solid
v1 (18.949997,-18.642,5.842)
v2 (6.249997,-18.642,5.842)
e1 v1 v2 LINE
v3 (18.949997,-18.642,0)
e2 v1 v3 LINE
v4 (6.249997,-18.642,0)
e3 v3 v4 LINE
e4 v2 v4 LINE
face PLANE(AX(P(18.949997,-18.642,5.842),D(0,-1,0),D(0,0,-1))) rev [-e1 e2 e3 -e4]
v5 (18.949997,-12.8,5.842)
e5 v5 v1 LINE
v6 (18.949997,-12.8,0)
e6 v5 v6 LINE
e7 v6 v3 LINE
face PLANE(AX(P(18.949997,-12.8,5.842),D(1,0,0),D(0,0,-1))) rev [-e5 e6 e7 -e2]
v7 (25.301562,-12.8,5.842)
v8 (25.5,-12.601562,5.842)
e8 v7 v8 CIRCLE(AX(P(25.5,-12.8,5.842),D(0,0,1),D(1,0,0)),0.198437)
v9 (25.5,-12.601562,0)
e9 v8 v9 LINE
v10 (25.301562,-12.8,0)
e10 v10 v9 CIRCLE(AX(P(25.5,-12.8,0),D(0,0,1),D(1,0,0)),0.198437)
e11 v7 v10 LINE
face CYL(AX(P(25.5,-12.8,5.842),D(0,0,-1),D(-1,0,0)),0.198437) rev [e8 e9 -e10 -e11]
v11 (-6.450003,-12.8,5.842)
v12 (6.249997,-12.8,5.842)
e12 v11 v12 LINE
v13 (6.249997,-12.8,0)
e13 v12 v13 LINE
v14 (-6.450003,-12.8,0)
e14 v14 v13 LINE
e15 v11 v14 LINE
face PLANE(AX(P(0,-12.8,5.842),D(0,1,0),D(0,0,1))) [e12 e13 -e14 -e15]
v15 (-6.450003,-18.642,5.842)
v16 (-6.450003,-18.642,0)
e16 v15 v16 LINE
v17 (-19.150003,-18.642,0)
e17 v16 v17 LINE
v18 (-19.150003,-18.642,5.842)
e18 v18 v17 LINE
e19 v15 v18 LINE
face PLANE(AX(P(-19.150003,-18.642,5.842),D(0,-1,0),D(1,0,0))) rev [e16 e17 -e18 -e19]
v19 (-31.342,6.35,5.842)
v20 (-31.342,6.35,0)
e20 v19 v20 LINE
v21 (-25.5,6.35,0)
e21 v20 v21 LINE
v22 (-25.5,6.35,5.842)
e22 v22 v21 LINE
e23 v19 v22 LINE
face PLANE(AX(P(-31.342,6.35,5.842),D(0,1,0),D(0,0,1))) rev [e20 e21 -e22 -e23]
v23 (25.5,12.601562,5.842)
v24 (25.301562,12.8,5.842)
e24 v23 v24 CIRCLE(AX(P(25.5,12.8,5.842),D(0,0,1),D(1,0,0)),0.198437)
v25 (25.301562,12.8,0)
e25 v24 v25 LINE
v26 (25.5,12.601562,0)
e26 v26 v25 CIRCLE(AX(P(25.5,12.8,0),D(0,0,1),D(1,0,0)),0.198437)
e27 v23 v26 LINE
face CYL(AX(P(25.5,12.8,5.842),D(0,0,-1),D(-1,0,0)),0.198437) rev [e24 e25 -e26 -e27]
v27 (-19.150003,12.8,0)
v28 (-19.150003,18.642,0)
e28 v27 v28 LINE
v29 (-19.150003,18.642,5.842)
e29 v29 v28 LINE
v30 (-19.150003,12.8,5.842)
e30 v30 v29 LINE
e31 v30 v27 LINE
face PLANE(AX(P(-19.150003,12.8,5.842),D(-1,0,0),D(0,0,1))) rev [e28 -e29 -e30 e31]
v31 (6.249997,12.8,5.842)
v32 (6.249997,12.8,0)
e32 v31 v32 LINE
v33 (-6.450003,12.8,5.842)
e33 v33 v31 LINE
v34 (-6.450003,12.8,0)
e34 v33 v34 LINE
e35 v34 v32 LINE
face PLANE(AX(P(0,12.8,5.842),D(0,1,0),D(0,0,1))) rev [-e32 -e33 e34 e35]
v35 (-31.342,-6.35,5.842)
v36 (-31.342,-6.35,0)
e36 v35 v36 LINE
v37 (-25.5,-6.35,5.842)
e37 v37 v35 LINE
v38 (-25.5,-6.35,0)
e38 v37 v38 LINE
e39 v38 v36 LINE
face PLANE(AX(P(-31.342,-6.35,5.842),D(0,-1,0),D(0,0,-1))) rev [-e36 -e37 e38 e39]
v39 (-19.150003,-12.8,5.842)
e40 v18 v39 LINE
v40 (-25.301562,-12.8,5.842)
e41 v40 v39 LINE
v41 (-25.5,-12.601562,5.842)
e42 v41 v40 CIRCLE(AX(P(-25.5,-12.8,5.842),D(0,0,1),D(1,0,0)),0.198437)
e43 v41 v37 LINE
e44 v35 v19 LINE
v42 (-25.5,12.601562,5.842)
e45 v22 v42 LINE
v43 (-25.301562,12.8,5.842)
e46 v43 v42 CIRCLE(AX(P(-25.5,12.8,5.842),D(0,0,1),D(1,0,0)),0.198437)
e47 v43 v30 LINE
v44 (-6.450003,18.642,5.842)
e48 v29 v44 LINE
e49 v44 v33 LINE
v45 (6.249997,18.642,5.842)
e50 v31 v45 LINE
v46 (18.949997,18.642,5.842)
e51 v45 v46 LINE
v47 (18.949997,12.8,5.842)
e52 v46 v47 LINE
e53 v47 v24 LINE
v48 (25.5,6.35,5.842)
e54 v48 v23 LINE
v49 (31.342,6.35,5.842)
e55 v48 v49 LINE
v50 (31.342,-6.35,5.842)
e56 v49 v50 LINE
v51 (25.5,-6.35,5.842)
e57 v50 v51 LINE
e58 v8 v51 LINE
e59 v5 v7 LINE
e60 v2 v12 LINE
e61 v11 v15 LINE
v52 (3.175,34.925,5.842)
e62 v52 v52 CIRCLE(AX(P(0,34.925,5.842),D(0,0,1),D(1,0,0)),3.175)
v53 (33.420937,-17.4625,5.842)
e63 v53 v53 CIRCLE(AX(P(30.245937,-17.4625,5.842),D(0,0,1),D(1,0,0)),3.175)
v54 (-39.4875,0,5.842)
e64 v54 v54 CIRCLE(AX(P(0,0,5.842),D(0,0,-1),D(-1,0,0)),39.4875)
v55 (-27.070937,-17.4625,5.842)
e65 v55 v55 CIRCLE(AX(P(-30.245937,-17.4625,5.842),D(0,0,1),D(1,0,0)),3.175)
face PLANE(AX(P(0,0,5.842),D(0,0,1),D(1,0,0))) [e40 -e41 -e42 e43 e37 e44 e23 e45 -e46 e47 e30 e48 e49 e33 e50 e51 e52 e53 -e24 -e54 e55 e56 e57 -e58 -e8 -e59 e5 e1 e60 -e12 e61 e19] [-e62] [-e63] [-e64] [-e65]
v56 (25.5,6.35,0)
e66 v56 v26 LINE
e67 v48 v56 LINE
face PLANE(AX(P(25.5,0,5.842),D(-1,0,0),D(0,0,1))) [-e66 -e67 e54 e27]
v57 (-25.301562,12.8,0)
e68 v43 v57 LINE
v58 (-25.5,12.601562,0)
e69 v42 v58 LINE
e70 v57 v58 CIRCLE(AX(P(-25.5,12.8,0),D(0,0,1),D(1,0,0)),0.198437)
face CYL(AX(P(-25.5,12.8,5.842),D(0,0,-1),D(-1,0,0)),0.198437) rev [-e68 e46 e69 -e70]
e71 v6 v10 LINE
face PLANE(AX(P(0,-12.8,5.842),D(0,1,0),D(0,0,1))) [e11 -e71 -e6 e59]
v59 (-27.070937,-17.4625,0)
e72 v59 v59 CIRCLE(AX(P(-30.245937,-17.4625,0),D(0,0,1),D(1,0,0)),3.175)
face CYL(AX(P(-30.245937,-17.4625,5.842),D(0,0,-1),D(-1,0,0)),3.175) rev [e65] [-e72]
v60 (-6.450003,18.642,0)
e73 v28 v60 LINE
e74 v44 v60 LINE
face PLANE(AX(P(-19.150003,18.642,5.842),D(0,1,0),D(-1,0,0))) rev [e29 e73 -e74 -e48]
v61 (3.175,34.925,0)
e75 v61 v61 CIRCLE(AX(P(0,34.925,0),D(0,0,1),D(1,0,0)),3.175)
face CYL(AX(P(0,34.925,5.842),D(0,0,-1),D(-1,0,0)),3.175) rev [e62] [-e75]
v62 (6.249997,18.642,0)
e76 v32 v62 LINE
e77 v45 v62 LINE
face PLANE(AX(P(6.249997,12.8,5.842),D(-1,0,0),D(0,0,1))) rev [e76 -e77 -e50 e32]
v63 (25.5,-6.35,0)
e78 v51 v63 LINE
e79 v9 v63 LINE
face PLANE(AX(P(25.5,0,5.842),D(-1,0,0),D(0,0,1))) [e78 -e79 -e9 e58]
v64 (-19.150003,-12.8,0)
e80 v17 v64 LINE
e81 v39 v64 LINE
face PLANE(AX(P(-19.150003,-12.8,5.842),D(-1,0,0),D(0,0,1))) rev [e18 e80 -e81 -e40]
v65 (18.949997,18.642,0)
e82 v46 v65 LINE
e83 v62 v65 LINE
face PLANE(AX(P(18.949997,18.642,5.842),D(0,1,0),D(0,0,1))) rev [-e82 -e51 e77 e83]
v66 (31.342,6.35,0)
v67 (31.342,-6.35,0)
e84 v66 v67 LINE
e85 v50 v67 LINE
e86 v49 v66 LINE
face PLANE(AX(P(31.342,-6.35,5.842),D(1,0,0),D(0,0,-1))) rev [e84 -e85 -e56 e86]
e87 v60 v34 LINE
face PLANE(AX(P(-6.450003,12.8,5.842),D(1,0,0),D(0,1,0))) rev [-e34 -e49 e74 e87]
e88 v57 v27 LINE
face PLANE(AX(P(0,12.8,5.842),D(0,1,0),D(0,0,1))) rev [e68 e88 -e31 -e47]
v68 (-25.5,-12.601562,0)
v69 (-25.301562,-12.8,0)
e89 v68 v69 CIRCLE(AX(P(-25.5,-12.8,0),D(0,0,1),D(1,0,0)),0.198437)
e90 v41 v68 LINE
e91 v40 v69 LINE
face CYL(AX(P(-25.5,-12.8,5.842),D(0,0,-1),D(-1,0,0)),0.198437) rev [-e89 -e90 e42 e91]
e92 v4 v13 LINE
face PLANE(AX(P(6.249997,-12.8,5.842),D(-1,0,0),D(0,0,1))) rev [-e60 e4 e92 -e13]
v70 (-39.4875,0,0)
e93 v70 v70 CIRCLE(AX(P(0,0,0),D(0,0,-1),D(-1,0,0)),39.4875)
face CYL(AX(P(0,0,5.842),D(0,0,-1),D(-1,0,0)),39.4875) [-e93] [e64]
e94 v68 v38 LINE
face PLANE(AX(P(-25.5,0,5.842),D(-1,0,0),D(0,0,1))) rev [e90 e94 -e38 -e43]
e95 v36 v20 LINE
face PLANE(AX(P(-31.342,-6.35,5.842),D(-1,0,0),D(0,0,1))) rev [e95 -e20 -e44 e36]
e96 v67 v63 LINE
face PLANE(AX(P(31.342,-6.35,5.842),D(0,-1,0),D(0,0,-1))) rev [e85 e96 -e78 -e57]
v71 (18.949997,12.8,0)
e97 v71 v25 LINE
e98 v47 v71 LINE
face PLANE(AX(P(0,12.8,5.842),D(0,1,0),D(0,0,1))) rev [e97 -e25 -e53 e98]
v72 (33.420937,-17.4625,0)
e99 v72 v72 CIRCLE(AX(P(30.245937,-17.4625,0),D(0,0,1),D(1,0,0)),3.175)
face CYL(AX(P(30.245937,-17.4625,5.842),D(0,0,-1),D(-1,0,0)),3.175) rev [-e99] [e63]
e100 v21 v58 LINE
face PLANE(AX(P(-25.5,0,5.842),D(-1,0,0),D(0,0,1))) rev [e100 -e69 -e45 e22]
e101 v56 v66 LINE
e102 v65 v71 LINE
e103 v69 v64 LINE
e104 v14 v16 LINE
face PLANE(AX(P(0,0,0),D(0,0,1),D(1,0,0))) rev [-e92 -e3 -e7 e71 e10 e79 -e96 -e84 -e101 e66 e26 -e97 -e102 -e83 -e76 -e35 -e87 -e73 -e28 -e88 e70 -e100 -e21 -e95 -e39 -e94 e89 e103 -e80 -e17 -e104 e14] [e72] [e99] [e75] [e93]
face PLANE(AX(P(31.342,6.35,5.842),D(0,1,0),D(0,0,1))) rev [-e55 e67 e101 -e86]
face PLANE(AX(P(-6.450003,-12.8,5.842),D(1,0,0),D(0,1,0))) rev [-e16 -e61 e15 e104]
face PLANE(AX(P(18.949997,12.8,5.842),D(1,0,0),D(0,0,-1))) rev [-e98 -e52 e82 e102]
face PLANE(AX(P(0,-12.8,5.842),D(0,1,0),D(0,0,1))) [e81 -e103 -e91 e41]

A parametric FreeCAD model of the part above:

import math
import FreeCAD as App
import Part
import Sketcher
from FreeCAD import Vector
Q = App.Units.Quantity


def add_polygon(sketch, points):
    """Adds a closed chain of lines whose ends are joined by coincident constraints."""
    first, n = sketch.GeometryCount, len(points)
    for a, b in zip(points, points[1:] + points[:1]):
        sketch.addGeometry(Part.LineSegment(App.Vector(*a, 0), App.Vector(*b, 0)), False)
    for i in range(n):
        sketch.addConstraint(Sketcher.Constraint("Coincident", first + i, 2, first + (i + 1) % n, 1))

doc = App.newDocument("Part")
body = doc.addObject("PartDesign::Body", "Body")

# Sketch on XY plane
sketch1 = doc.addObject("Sketcher::SketchObject", "Sketch")
body.addObject(sketch1)
sketch1.AttachmentSupport = (doc.XY_Plane, [""])
sketch1.MapMode = "FlatFace"
sketch1.addGeometry([
    Part.Circle(Vector(0, 0, 0), Vector(0, 0, 1), 41.27),  # 0
    Part.Circle(Vector(-30.25, -17.46, 0), Vector(0, 0, 1), 3.17),  # 1
    Part.Circle(Vector(30.25, -17.46, 0), Vector(0, 0, 1), 3.17),  # 2
    Part.LineSegment(Vector(25.3, -12.8, 0), Vector(-25.3, -12.8, 0)),  # 3
    Part.ArcOfCircle(Part.Circle(Vector(-25.5, -12.8, 0), Vector(0, 0, 1), 0.2), math.radians(90), math.radians(360)),  # 4
    Part.LineSegment(Vector(-25.5, -12.6, 0), Vector(-25.5, 12.6, 0)),  # 5
    Part.ArcOfCircle(Part.Circle(Vector(-25.5, 12.8, 0), Vector(0, 0, 1), 0.2), math.radians(0), math.radians(270)),  # 6
    Part.LineSegment(Vector(-25.3, 12.8, 0), Vector(25.3, 12.8, 0)),  # 7
    Part.ArcOfCircle(Part.Circle(Vector(25.5, 12.8, 0), Vector(0, 0, 1), 0.2), math.radians(-90), math.radians(180)),  # 8
    Part.LineSegment(Vector(25.5, 12.6, 0), Vector(25.5, -12.6, 0)),  # 9
    Part.ArcOfCircle(Part.Circle(Vector(25.5, -12.8, 0), Vector(0, 0, 1), 0.2), math.radians(180), math.radians(450)),  # 10
    Part.Circle(Vector(0, 34.92, 0), Vector(0, 0, 1), 3.17),  # 11
], False)
sketch1.addConstraint([
    Sketcher.Constraint("Coincident", 3, 2, 4, 2),
    Sketcher.Constraint("Coincident", 4, 1, 5, 1),
    Sketcher.Constraint("Coincident", 5, 2, 6, 2),
    Sketcher.Constraint("Coincident", 6, 1, 7, 1),
    Sketcher.Constraint("Coincident", 7, 2, 8, 2),
    Sketcher.Constraint("Coincident", 8, 1, 9, 1),
    Sketcher.Constraint("Coincident", 9, 2, 10, 2),
    Sketcher.Constraint("Coincident", 10, 1, 3, 1),
    Sketcher.Constraint("Horizontal", 3),
    Sketcher.Constraint("Vertical", 5),
    Sketcher.Constraint("Horizontal", 7),
    Sketcher.Constraint("Vertical", 9),
    Sketcher.Constraint("Coincident", 0, 3, -1, 1),
    Sketcher.Constraint("Equal", 1, 2),
    Sketcher.Constraint("Equal", 4, 6),
    Sketcher.Constraint("Equal", 6, 8),
    Sketcher.Constraint("Equal", 8, 10),
    Sketcher.Constraint("Equal", 2, 11),
    Sketcher.Constraint("Symmetric", 4, 3, 8, 3, -1, 1),
    Sketcher.Constraint("Symmetric", 6, 3, 10, 3, -1, 1),
    Sketcher.Constraint("Symmetric", 1, 3, 2, 3, -2),
    Sketcher.Constraint("Symmetric", 6, 3, 8, 3, -2),
    Sketcher.Constraint("PointOnObject", 11, 3, -2),
    Sketcher.Constraint("Horizontal", 10, 3, 3, 2),
    Sketcher.Constraint("Horizontal", 8, 3, 6, 1),
    Sketcher.Constraint("Vertical", 6, 3, 4, 1),
    Sketcher.Constraint("Vertical", 10, 3, 8, 1),
    Sketcher.Constraint("Diameter", 0, Q("3.25 in")),
    Sketcher.Constraint("Diameter", 1, Q("0.25 in")),
    Sketcher.Constraint("DistanceY", 1, 3, -1, 1, Q("0.6875 in")),
    Sketcher.Constraint("DistanceY", -1, 1, 11, 3, Q("1.375 in")),
    Sketcher.Constraint("Radius", 4, Q("0.198437 mm")),
    Sketcher.Constraint("DistanceX", 4, 3, -1, 1, Q("25.5 mm")),
    Sketcher.Constraint("DistanceY", 4, 3, -1, 1, Q("12.8 mm")),
    Sketcher.Constraint("DistanceX", 1, 3, -1, 1, Q("30.245937 mm")),
])
pad1 = doc.addObject("PartDesign::Pad", "Pad")
body.addObject(pad1)
pad1.Profile = sketch1
pad1.Length = Q("0.23 in")

# Sketch on XY plane
sketch2 = doc.addObject("Sketcher::SketchObject", "Sketch001")
body.addObject(sketch2)
sketch2.AttachmentSupport = (doc.XY_Plane, [""])
sketch2.MapMode = "FlatFace"
sketch2.addGeometry([
    Part.Circle(Vector(0, 0, 0), Vector(0, 0, 1), 41),
    Part.Circle(Vector(0, 0, 0), Vector(0, 0, 1), 39),
], False)
sketch2.addConstraint([
    Sketcher.Constraint("Coincident", 0, 3, -1, 1),
    Sketcher.Constraint("Coincident", 1, 3, -1, 1),
    Sketcher.Constraint("Diameter", 0, Q("3.25 in")),
    Sketcher.Constraint("Diameter", 1, Q("78.975 mm")),
])
pocket1 = doc.addObject("PartDesign::Pocket", "Pocket")
body.addObject(pocket1)
pocket1.Profile = sketch2
pocket1.Type = "ThroughAll"
pocket1.Reversed = True

# Sketch on XY plane
sketch3 = doc.addObject("Sketcher::SketchObject", "Sketch002")
body.addObject(sketch3)
sketch3.AttachmentSupport = (doc.XY_Plane, [""])
sketch3.MapMode = "FlatFace"
add_polygon(sketch3, [(31, 6), (31, -6), (26, -6), (26, 6)])  # lines 0-3
add_polygon(sketch3, [(19, 19), (19, 13), (6, 13), (6, 19)])  # lines 4-7
add_polygon(sketch3, [(-6, 19), (-6, 13), (-19, 13), (-19, 19)])  # lines 8-11
add_polygon(sketch3, [(-6, -13), (-6, -19), (-19, -19), (-19, -13)])  # lines 12-15
add_polygon(sketch3, [(19, -13), (19, -19), (6, -19), (6, -13)])  # lines 16-19
add_polygon(sketch3, [(-26, 6), (-26, -6), (-31, -6), (-31, 6)])  # lines 20-23
sketch3.addConstraint([
    Sketcher.Constraint("Vertical", 0),
    Sketcher.Constraint("Horizontal", 1),
    Sketcher.Constraint("Vertical", 2),
    Sketcher.Constraint("Horizontal", 3),
    Sketcher.Constraint("Vertical", 4),
    Sketcher.Constraint("Horizontal", 5),
    Sketcher.Constraint("Vertical", 6),
    Sketcher.Constraint("Horizontal", 7),
    Sketcher.Constraint("Vertical", 8),
    Sketcher.Constraint("Horizontal", 9),
    Sketcher.Constraint("Vertical", 10),
    Sketcher.Constraint("Horizontal", 11),
    Sketcher.Constraint("Vertical", 12),
    Sketcher.Constraint("Horizontal", 13),
    Sketcher.Constraint("Vertical", 14),
    Sketcher.Constraint("Horizontal", 15),
    Sketcher.Constraint("Vertical", 16),
    Sketcher.Constraint("Horizontal", 17),
    Sketcher.Constraint("Vertical", 18),
    Sketcher.Constraint("Horizontal", 19),
    Sketcher.Constraint("Vertical", 20),
    Sketcher.Constraint("Horizontal", 21),
    Sketcher.Constraint("Vertical", 22),
    Sketcher.Constraint("Horizontal", 23),
    Sketcher.Constraint("Symmetric", 2, 2, 20, 2, -1, 1),
    Sketcher.Constraint("Symmetric", 0, 2, 22, 2, -1, 1),
    Sketcher.Constraint("Symmetric", 11, 2, 12, 2, -1),
    Sketcher.Constraint("Symmetric", 9, 2, 14, 2, -1),
    Sketcher.Constraint("Symmetric", 7, 2, 16, 2, -1),
    Sketcher.Constraint("Symmetric", 5, 2, 18, 2, -1),
    Sketcher.Constraint("Horizontal", 5, 2, 8, 2),
    Sketcher.Constraint("Horizontal", 7, 2, 10, 2),
    Sketcher.Constraint("Horizontal", 1, 2, 20, 2),
    Sketcher.Constraint("Equal", 7, 9),
    Sketcher.Constraint("Equal", 19, 0),
    Sketcher.Constraint("Equal", 23, 4),
    Sketcher.Constraint("DistanceX", 5, 2, 5, 1, Q("0.5 in")),
    Sketcher.Constraint("DistanceX", 8, 2, 4, 2, Q("1 in")),
    Sketcher.Constraint("DistanceX", 1, 2, 1, 1, Q("0.23 in")),
    Sketcher.Constraint("DistanceX", 20, 2, 14, 2, Q("0.2499999 in")),
    Sketcher.Constraint("DistanceX", -1, 1, 0, 2, Q("31.342 mm")),
    Sketcher.Constraint("DistanceY", -1, 1, 4, 2, Q("12.8 mm")),
])
pocket2 = doc.addObject("PartDesign::Pocket", "Pocket001")
body.addObject(pocket2)
pocket2.Profile = sketch3
pocket2.Type = "ThroughAll"
pocket2.Reversed = True

doc.recompute()
